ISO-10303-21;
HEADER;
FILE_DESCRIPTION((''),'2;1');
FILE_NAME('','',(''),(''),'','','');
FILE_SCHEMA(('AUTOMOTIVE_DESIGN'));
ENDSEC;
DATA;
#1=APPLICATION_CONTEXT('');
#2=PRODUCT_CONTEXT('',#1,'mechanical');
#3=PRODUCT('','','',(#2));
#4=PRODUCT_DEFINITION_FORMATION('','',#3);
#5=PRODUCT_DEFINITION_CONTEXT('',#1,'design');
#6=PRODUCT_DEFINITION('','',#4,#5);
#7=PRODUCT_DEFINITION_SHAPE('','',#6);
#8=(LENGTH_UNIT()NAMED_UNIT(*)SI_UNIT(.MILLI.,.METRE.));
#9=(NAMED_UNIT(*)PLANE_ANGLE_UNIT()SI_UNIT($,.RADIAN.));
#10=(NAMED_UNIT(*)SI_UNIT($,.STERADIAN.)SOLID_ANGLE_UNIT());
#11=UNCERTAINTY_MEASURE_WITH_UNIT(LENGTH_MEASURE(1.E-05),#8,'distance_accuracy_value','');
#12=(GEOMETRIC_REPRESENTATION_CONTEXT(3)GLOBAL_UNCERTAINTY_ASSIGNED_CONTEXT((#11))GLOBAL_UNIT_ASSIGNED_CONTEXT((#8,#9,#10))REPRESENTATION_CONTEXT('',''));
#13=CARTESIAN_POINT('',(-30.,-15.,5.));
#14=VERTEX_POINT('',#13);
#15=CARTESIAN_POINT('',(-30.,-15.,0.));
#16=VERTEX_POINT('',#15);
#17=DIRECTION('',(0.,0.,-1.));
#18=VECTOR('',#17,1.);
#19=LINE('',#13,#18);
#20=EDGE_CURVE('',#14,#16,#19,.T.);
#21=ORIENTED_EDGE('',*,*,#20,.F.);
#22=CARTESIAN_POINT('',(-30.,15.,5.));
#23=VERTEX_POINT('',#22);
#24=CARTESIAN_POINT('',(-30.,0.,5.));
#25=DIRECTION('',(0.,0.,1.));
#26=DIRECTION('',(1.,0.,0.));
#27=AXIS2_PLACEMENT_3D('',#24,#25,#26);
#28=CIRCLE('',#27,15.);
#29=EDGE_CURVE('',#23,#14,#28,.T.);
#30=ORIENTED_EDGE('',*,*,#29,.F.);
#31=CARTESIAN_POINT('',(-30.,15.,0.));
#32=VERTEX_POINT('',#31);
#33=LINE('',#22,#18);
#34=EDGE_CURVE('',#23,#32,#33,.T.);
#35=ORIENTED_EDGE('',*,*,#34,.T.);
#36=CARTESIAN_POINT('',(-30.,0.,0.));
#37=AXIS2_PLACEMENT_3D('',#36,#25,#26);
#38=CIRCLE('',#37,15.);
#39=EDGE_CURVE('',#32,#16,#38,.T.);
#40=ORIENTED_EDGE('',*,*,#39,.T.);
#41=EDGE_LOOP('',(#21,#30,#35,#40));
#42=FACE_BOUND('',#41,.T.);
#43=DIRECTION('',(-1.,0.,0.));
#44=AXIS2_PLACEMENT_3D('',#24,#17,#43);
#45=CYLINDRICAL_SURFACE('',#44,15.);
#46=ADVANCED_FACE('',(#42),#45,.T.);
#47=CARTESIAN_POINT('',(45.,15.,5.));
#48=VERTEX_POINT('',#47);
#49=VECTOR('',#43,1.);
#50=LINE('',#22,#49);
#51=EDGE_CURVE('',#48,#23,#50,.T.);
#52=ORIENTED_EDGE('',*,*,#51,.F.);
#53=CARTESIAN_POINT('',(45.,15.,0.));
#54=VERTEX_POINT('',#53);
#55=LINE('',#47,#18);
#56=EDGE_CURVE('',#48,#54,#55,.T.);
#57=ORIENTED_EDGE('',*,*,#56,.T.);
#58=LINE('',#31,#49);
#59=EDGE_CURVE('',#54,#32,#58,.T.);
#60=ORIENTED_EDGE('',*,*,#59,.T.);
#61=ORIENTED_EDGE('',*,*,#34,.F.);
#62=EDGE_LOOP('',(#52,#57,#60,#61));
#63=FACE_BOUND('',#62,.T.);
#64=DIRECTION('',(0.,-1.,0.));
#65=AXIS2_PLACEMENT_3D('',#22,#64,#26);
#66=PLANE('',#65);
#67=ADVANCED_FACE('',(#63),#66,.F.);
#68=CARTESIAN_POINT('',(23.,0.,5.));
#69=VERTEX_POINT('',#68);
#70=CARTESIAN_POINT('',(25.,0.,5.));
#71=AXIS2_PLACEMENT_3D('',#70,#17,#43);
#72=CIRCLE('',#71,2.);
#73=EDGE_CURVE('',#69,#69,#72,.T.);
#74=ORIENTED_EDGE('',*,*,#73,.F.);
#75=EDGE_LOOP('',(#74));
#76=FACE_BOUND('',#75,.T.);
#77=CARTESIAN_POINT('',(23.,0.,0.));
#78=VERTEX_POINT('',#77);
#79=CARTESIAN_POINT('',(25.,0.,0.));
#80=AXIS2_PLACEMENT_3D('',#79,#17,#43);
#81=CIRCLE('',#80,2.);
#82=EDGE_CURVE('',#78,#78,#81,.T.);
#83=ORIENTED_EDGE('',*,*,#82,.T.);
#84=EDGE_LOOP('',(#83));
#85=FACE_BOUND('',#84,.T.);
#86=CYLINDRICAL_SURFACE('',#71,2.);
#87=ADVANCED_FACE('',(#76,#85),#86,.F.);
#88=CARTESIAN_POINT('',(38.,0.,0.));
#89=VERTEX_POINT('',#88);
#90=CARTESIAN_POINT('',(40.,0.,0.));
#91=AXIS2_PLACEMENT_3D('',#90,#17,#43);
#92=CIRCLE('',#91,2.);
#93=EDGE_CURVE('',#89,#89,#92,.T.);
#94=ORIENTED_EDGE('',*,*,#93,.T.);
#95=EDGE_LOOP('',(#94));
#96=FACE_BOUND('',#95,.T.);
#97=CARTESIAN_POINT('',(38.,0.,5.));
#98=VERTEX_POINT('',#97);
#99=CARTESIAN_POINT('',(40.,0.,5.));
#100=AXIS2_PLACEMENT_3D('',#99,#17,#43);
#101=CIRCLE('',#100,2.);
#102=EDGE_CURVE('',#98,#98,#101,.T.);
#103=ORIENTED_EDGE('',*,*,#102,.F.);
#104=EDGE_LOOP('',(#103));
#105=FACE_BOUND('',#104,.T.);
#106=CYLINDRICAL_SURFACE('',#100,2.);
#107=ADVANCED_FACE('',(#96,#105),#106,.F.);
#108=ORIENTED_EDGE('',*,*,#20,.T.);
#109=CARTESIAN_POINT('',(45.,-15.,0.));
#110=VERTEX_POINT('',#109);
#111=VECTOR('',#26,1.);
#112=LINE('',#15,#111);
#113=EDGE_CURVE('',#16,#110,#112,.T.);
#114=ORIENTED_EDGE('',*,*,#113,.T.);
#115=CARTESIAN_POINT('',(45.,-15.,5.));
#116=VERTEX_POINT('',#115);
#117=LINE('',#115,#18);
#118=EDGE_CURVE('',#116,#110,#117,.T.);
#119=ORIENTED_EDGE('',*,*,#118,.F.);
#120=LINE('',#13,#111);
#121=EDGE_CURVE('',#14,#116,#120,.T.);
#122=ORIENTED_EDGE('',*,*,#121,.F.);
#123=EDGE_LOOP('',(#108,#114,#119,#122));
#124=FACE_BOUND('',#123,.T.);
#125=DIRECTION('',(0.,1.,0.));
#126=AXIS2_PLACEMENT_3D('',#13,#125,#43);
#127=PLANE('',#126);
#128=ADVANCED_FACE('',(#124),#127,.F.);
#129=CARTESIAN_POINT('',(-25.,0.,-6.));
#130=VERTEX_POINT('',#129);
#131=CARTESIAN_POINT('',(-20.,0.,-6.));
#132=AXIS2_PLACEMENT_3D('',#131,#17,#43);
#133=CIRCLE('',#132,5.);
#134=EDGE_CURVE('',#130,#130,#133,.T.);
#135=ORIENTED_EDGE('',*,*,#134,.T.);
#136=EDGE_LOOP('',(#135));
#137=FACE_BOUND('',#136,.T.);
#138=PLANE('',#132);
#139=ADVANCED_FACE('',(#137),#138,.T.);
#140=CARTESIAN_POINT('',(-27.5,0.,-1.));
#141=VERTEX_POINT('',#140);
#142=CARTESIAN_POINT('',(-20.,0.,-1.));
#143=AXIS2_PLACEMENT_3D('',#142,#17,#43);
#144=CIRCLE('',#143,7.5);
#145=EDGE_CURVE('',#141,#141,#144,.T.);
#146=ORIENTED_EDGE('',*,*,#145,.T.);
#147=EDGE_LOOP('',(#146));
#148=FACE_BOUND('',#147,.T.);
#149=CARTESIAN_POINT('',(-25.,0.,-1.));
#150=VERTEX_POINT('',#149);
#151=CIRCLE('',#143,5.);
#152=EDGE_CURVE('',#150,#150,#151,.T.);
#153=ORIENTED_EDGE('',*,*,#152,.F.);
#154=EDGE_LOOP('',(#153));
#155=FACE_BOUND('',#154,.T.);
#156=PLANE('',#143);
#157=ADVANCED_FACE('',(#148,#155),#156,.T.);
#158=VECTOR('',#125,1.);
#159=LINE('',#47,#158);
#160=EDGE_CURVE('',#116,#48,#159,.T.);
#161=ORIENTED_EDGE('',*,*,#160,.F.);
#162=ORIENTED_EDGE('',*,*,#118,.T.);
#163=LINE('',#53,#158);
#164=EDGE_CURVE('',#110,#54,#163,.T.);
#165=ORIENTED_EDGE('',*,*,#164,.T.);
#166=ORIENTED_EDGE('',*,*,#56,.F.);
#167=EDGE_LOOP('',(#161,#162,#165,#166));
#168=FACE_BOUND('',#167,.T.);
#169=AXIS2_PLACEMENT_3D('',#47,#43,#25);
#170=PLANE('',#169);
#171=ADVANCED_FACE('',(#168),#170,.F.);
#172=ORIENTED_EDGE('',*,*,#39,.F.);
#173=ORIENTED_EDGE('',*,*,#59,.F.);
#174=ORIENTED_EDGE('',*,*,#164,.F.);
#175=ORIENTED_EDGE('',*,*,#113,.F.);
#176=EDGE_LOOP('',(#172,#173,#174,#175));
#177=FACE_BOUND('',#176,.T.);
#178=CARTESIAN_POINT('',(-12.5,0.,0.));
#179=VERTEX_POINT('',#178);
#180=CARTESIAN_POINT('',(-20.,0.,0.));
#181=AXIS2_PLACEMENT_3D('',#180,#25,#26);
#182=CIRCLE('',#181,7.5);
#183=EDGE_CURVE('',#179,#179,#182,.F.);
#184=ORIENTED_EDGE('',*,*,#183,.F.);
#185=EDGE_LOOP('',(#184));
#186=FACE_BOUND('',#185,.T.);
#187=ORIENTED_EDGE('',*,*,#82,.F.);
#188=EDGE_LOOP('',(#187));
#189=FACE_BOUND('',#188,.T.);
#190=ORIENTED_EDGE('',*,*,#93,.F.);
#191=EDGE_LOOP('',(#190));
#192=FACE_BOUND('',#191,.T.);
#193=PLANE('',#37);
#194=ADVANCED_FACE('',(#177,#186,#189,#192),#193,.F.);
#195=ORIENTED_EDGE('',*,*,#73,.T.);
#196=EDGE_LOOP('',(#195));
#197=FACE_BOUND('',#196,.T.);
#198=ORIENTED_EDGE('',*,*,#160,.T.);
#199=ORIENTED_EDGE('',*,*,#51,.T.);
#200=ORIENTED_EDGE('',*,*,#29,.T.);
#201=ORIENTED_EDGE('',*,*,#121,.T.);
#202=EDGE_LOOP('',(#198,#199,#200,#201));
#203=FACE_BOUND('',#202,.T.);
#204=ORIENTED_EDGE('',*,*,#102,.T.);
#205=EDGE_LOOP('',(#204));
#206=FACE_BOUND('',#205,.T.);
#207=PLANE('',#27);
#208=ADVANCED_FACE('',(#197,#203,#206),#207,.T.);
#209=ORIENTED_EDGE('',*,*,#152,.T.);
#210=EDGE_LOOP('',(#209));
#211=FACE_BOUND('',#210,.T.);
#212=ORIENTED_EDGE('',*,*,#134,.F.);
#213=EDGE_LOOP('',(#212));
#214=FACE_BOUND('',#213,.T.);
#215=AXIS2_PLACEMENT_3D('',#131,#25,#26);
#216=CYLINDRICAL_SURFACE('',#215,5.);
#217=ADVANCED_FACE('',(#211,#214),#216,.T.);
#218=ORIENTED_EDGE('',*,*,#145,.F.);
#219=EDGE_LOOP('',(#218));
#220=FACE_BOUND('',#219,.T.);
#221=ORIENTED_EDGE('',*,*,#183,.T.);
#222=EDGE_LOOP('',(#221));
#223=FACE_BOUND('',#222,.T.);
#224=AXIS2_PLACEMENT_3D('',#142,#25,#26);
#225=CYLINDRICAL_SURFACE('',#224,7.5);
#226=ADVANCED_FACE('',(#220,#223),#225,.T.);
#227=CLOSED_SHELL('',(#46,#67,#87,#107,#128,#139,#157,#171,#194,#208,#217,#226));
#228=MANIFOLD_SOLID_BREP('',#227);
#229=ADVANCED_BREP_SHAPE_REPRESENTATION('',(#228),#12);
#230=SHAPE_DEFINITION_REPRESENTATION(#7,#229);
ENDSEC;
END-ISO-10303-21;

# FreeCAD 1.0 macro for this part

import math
import FreeCAD as App
import Part
import Sketcher

V = App.Vector

doc = App.newDocument("Part")
body = doc.addObject("PartDesign::Body", "Body")

# Sketch on XY plane
sketch1 = doc.addObject("Sketcher::SketchObject", "Sketch")
body.addObject(sketch1)
sketch1.AttachmentSupport = (doc.XY_Plane, [""])
sketch1.MapMode = "FlatFace"
sketch1.addGeometry([
    Part.LineSegment(V(45, 15, 0), V(-30, 15, 0)),
    Part.ArcOfCircle(Part.Circle(V(-30, 0, 0), V(0, 0, 1), 15), math.radians(90), math.radians(270)),
    Part.LineSegment(V(-30, -15, 0), V(45, -15, 0)),
    Part.LineSegment(V(45, -15, 0), V(45, 15, 0)),
], False)
sketch1.addConstraint([
    Sketcher.Constraint("Tangent", 0, 2, 1, 1),
    Sketcher.Constraint("Tangent", 1, 2, 2, 1),
    Sketcher.Constraint("Coincident", 2, 2, 3, 1),
    Sketcher.Constraint("Coincident", 3, 2, 0, 1),
    Sketcher.Constraint("Horizontal", 0),
    Sketcher.Constraint("Horizontal", 2),
    Sketcher.Constraint("Vertical", 3),
    Sketcher.Constraint("PointOnObject", 1, 3, -1),
    Sketcher.Constraint("Radius", 1, 15.0),
    Sketcher.Constraint("DistanceX", 0, 2, 0, 1, 75.0),
    Sketcher.Constraint("DistanceX", 1, 3, -1, 1, 30.0),
])
pad1 = doc.addObject("PartDesign::Pad", "Pad")
body.addObject(pad1)
pad1.Profile = sketch1
pad1.Length = 5

# Sketch on XY plane
sketch2 = doc.addObject("Sketcher::SketchObject", "Sketch001")
body.addObject(sketch2)
sketch2.AttachmentSupport = (doc.XY_Plane, [""])
sketch2.MapMode = "FlatFace"
sketch2.addGeometry([
    Part.Circle(V(40, 0, 0), V(0, 0, 1), 2),
    Part.Circle(V(25, 0, 0), V(0, 0, 1), 2),
], False)
sketch2.addConstraint([
    Sketcher.Constraint("Equal", 0, 1),
    Sketcher.Constraint("PointOnObject", 0, 3, -1),
    Sketcher.Constraint("PointOnObject", 1, 3, -1),
    Sketcher.Constraint("Diameter", 0, 4.0),
    Sketcher.Constraint("DistanceX", -1, 1, 0, 3, 40.0),
    Sketcher.Constraint("DistanceX", -1, 1, 1, 3, 25.0),
])
pocket1 = doc.addObject("PartDesign::Pocket", "Pocket")
body.addObject(pocket1)
pocket1.Profile = sketch2
pocket1.Type = "ThroughAll"
pocket1.Reversed = True

# Sketch on XY plane
sketch3 = doc.addObject("Sketcher::SketchObject", "Sketch002")
body.addObject(sketch3)
sketch3.AttachmentSupport = (doc.XY_Plane, [""])
sketch3.MapMode = "FlatFace"
sketch3.addGeometry(Part.Circle(V(-20, 0, 0), V(0, 0, 1), 8), False)
sketch3.addConstraint([
    Sketcher.Constraint("PointOnObject", 0, 3, -1),
    Sketcher.Constraint("Diameter", 0, 15.0),
    Sketcher.Constraint("DistanceX", 0, 3, -1, 1, 20.0),
])
pad2 = doc.addObject("PartDesign::Pad", "Pad001")
body.addObject(pad2)
pad2.Profile = sketch3
pad2.Length = 1
pad2.Reversed = True

# Sketch on XY plane
sketch4 = doc.addObject("Sketcher::SketchObject", "Sketch003")
body.addObject(sketch4)
sketch4.AttachmentSupport = (doc.XY_Plane, [""])
sketch4.MapMode = "FlatFace"
sketch4.AttachmentOffset = App.Placement(V(0, 0, -1), App.Rotation())
sketch4.addGeometry(Part.Circle(V(-20, 0, 0), V(0, 0, 1), 5), False)
sketch4.addConstraint([
    Sketcher.Constraint("PointOnObject", 0, 3, -1),
    Sketcher.Constraint("Diameter", 0, 10.0),
    Sketcher.Constraint("DistanceX", 0, 3, -1, 1, 20.0),
])
pad3 = doc.addObject("PartDesign::Pad", "Pad002")
body.addObject(pad3)
pad3.Profile = sketch4
pad3.Length = 5
pad3.Reversed = True

doc.recompute()
